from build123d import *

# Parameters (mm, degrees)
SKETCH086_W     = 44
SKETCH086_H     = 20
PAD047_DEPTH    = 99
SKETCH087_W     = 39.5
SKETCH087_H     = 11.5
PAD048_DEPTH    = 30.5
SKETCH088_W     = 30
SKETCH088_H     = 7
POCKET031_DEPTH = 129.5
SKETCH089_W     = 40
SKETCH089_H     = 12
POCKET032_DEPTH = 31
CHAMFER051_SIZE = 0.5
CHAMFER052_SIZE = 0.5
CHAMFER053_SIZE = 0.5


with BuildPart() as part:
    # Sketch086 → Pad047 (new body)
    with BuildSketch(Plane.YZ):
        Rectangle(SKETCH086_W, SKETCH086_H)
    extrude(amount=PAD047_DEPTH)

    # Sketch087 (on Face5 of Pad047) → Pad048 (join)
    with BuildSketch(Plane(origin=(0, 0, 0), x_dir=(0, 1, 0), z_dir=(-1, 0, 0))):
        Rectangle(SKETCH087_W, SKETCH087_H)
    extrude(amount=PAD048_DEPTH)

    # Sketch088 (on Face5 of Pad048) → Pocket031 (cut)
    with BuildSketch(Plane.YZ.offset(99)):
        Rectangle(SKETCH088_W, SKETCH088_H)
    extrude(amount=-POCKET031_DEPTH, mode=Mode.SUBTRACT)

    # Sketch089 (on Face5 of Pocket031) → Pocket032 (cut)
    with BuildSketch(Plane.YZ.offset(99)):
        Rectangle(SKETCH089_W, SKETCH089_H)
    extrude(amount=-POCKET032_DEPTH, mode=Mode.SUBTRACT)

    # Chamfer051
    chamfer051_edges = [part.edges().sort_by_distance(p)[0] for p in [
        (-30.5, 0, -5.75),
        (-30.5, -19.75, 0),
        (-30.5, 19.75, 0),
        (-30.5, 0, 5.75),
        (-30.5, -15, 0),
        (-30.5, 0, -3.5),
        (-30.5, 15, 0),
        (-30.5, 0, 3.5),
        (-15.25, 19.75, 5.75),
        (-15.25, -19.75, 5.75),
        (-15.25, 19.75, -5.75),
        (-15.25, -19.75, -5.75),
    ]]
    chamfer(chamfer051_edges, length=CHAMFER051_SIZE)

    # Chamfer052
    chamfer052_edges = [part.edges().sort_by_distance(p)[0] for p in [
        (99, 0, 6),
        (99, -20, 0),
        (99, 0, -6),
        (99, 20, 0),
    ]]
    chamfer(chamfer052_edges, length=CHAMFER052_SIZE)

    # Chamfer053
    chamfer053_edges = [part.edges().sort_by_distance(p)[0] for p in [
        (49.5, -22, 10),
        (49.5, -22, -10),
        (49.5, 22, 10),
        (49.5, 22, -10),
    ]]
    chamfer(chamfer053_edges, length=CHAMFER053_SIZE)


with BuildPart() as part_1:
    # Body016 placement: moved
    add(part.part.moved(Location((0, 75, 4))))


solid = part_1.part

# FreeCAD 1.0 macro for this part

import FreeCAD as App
import Part
import Sketcher


def edges_at(feature, points):
    """Names of the edges that pass closest to the given points."""
    edges = feature.Shape.Edges
    near = lambda p: min(range(len(edges)), key=lambda i: edges[i].distToShape(Part.Vertex(*p))[0])
    return sorted({f"Edge{near(p) + 1}" for p in points})

doc = App.newDocument("Part")
params = doc.addObject("Spreadsheet::Sheet", "Params")
for row, (alias, value) in enumerate([
    ("sketch1_width", "44 mm"),
    ("sketch1_height", "20 mm"),
    ("pad1_length", "99 mm"),
    ("sketch2_width", "39.5 mm"),
    ("sketch2_height", "11.5 mm"),
    ("pad2_length", "30.5 mm"),
    ("sketch3_width", "30 mm"),
    ("sketch3_height", "7 mm"),
    ("pocket1_length", "129.5 mm"),
    ("sketch4_width", "40 mm"),
    ("sketch4_height", "12 mm"),
    ("pocket2_length", "31 mm"),
    ("chamfer_size", "0.5 mm"),
    ("chamfer2_size", "0.5 mm"),
    ("chamfer3_size", "0.5 mm"),
], start=1):
    params.set(f"A{row}", alias)
    params.set(f"B{row}", "=" + value)
    params.setAlias(f"B{row}", alias)

body = doc.addObject("PartDesign::Body", "Body")

sketch1 = doc.addObject("Sketcher::SketchObject", "Sketch")
body.addObject(sketch1)
sketch1.AttachmentSupport = (doc.YZ_Plane, [""])
sketch1.MapMode = "FlatFace"
sketch1.addGeometry([
    Part.LineSegment(App.Vector(-22, 10, 0), App.Vector(-22, -10, 0)),
    Part.LineSegment(App.Vector(-22, -10, 0), App.Vector(22, -10, 0)),
    Part.LineSegment(App.Vector(22, -10, 0), App.Vector(22, 10, 0)),
    Part.LineSegment(App.Vector(22, 10, 0), App.Vector(-22, 10, 0)),
], False)
sketch1.addConstraint([
    Sketcher.Constraint("Coincident", 0, 2, 1, 1),
    Sketcher.Constraint("Coincident", 1, 2, 2, 1),
    Sketcher.Constraint("Coincident", 2, 2, 3, 1),
    Sketcher.Constraint("Coincident", 3, 2, 0, 1),
    Sketcher.Constraint("Vertical", 0),
    Sketcher.Constraint("Horizontal", 1),
    Sketcher.Constraint("Vertical", 2),
    Sketcher.Constraint("Horizontal", 3),
    Sketcher.Constraint("Symmetric", 0, 2, 2, 2, -1, 1),
    Sketcher.Constraint("DistanceX", 1, 1, 1, 2, 44.0),
    Sketcher.Constraint("DistanceY", 0, 2, 0, 1, 20.0),
])
sketch1.setExpression("Constraints[9]", "Params.sketch1_width")
sketch1.setExpression("Constraints[10]", "Params.sketch1_height")
pad1 = doc.addObject("PartDesign::Pad", "Pad")
body.addObject(pad1)
pad1.Profile = sketch1
pad1.setExpression("Length", "Params.pad1_length")

sketch2 = doc.addObject("Sketcher::SketchObject", "Sketch001")
body.addObject(sketch2)
sketch2.AttachmentSupport = (doc.YZ_Plane, [""])
sketch2.MapMode = "FlatFace"
sketch2.addGeometry([
    Part.LineSegment(App.Vector(-19.75, -5.75, 0), App.Vector(-19.75, 5.75, 0)),
    Part.LineSegment(App.Vector(-19.75, 5.75, 0), App.Vector(19.75, 5.75, 0)),
    Part.LineSegment(App.Vector(19.75, 5.75, 0), App.Vector(19.75, -5.75, 0)),
    Part.LineSegment(App.Vector(19.75, -5.75, 0), App.Vector(-19.75, -5.75, 0)),
], False)
sketch2.addConstraint([
    Sketcher.Constraint("Coincident", 0, 2, 1, 1),
    Sketcher.Constraint("Coincident", 1, 2, 2, 1),
    Sketcher.Constraint("Coincident", 2, 2, 3, 1),
    Sketcher.Constraint("Coincident", 3, 2, 0, 1),
    Sketcher.Constraint("Vertical", 0),
    Sketcher.Constraint("Horizontal", 1),
    Sketcher.Constraint("Vertical", 2),
    Sketcher.Constraint("Horizontal", 3),
    Sketcher.Constraint("Symmetric", 0, 2, 2, 2, -1, 1),
    Sketcher.Constraint("DistanceX", 1, 1, 1, 2, 39.5),
    Sketcher.Constraint("DistanceY", 0, 1, 0, 2, 11.5),
])
sketch2.setExpression("Constraints[9]", "Params.sketch2_width")
sketch2.setExpression("Constraints[10]", "Params.sketch2_height")
pad2 = doc.addObject("PartDesign::Pad", "Pad001")
body.addObject(pad2)
pad2.Profile = sketch2
pad2.setExpression("Length", "Params.pad2_length")
pad2.Reversed = True

sketch3 = doc.addObject("Sketcher::SketchObject", "Sketch002")
body.addObject(sketch3)
sketch3.AttachmentSupport = (doc.YZ_Plane, [""])
sketch3.MapMode = "FlatFace"
sketch3.AttachmentOffset = App.Placement(App.Vector(0, 0, 99), App.Rotation())
sketch3.addGeometry([
    Part.LineSegment(App.Vector(-15, 3.5, 0), App.Vector(-15, -3.5, 0)),
    Part.LineSegment(App.Vector(-15, -3.5, 0), App.Vector(15, -3.5, 0)),
    Part.LineSegment(App.Vector(15, -3.5, 0), App.Vector(15, 3.5, 0)),
    Part.LineSegment(App.Vector(15, 3.5, 0), App.Vector(-15, 3.5, 0)),
], False)
sketch3.addConstraint([
    Sketcher.Constraint("Coincident", 0, 2, 1, 1),
    Sketcher.Constraint("Coincident", 1, 2, 2, 1),
    Sketcher.Constraint("Coincident", 2, 2, 3, 1),
    Sketcher.Constraint("Coincident", 3, 2, 0, 1),
    Sketcher.Constraint("Vertical", 0),
    Sketcher.Constraint("Horizontal", 1),
    Sketcher.Constraint("Vertical", 2),
    Sketcher.Constraint("Horizontal", 3),
    Sketcher.Constraint("Symmetric", 0, 2, 2, 2, -1, 1),
    Sketcher.Constraint("DistanceX", 1, 1, 1, 2, 30.0),
    Sketcher.Constraint("DistanceY", 0, 2, 0, 1, 7.0),
])
sketch3.setExpression("Constraints[9]", "Params.sketch3_width")
sketch3.setExpression("Constraints[10]", "Params.sketch3_height")
pocket1 = doc.addObject("PartDesign::Pocket", "Pocket")
body.addObject(pocket1)
pocket1.Profile = sketch3
pocket1.setExpression("Length", "Params.pocket1_length")

sketch4 = doc.addObject("Sketcher::SketchObject", "Sketch003")
body.addObject(sketch4)
sketch4.AttachmentSupport = (doc.YZ_Plane, [""])
sketch4.MapMode = "FlatFace"
sketch4.AttachmentOffset = App.Placement(App.Vector(0, 0, 99), App.Rotation())
sketch4.addGeometry([
    Part.LineSegment(App.Vector(-20, 6, 0), App.Vector(-20, -6, 0)),
    Part.LineSegment(App.Vector(-20, -6, 0), App.Vector(20, -6, 0)),
    Part.LineSegment(App.Vector(20, -6, 0), App.Vector(20, 6, 0)),
    Part.LineSegment(App.Vector(20, 6, 0), App.Vector(-20, 6, 0)),
], False)
sketch4.addConstraint([
    Sketcher.Constraint("Coincident", 0, 2, 1, 1),
    Sketcher.Constraint("Coincident", 1, 2, 2, 1),
    Sketcher.Constraint("Coincident", 2, 2, 3, 1),
    Sketcher.Constraint("Coincident", 3, 2, 0, 1),
    Sketcher.Constraint("Vertical", 0),
    Sketcher.Constraint("Horizontal", 1),
    Sketcher.Constraint("Vertical", 2),
    Sketcher.Constraint("Horizontal", 3),
    Sketcher.Constraint("Symmetric", 0, 2, 2, 2, -1, 1),
    Sketcher.Constraint("DistanceX", 1, 1, 1, 2, 40.0),
    Sketcher.Constraint("DistanceY", 0, 2, 0, 1, 12.0),
])
sketch4.setExpression("Constraints[9]", "Params.sketch4_width")
sketch4.setExpression("Constraints[10]", "Params.sketch4_height")
pocket2 = doc.addObject("PartDesign::Pocket", "Pocket001")
body.addObject(pocket2)
pocket2.Profile = sketch4
pocket2.setExpression("Length", "Params.pocket2_length")
doc.recompute()

chamfer = doc.addObject("PartDesign::Chamfer", "Chamfer")
body.addObject(chamfer)
chamfer.Base = (pocket2, edges_at(pocket2, [
    (-30.5, 0, -5.75),
    (-30.5, -19.75, 0),
    (-30.5, 19.75, 0),
    (-30.5, 0, 5.75),
    (-30.5, -15, 0),
    (-30.5, 0, -3.5),
    (-30.5, 15, 0),
    (-30.5, 0, 3.5),
    (-15.25, 19.75, 5.75),
    (-15.25, -19.75, 5.75),
    (-15.25, 19.75, -5.75),
    (-15.25, -19.75, -5.75),
]))
chamfer.setExpression("Size", "Params.chamfer_size")
doc.recompute()

chamfer2 = doc.addObject("PartDesign::Chamfer", "Chamfer001")
body.addObject(chamfer2)
chamfer2.Base = (chamfer, edges_at(chamfer, [
    (99, 0, 6),
    (99, -20, 0),
    (99, 0, -6),
    (99, 20, 0),
]))
chamfer2.setExpression("Size", "Params.chamfer2_size")
doc.recompute()

chamfer3 = doc.addObject("PartDesign::Chamfer", "Chamfer002")
body.addObject(chamfer3)
chamfer3.Base = (chamfer2, edges_at(chamfer2, [
    (49.5, -22, 10),
    (49.5, -22, -10),
    (49.5, 22, 10),
    (49.5, 22, -10),
]))
chamfer3.setExpression("Size", "Params.chamfer3_size")
body2 = doc.addObject("PartDesign::Body", "Body001")
doc.recompute()

body.Placement = App.Placement(App.Vector(0, 75, 4), App.Rotation(App.Vector(0, 0, 1), 0))
boolean = doc.addObject("PartDesign::Boolean", "Boolean")
body2.addObject(boolean)
boolean.Type = "Fuse"
boolean.addObjects([body])

doc.recompute()
